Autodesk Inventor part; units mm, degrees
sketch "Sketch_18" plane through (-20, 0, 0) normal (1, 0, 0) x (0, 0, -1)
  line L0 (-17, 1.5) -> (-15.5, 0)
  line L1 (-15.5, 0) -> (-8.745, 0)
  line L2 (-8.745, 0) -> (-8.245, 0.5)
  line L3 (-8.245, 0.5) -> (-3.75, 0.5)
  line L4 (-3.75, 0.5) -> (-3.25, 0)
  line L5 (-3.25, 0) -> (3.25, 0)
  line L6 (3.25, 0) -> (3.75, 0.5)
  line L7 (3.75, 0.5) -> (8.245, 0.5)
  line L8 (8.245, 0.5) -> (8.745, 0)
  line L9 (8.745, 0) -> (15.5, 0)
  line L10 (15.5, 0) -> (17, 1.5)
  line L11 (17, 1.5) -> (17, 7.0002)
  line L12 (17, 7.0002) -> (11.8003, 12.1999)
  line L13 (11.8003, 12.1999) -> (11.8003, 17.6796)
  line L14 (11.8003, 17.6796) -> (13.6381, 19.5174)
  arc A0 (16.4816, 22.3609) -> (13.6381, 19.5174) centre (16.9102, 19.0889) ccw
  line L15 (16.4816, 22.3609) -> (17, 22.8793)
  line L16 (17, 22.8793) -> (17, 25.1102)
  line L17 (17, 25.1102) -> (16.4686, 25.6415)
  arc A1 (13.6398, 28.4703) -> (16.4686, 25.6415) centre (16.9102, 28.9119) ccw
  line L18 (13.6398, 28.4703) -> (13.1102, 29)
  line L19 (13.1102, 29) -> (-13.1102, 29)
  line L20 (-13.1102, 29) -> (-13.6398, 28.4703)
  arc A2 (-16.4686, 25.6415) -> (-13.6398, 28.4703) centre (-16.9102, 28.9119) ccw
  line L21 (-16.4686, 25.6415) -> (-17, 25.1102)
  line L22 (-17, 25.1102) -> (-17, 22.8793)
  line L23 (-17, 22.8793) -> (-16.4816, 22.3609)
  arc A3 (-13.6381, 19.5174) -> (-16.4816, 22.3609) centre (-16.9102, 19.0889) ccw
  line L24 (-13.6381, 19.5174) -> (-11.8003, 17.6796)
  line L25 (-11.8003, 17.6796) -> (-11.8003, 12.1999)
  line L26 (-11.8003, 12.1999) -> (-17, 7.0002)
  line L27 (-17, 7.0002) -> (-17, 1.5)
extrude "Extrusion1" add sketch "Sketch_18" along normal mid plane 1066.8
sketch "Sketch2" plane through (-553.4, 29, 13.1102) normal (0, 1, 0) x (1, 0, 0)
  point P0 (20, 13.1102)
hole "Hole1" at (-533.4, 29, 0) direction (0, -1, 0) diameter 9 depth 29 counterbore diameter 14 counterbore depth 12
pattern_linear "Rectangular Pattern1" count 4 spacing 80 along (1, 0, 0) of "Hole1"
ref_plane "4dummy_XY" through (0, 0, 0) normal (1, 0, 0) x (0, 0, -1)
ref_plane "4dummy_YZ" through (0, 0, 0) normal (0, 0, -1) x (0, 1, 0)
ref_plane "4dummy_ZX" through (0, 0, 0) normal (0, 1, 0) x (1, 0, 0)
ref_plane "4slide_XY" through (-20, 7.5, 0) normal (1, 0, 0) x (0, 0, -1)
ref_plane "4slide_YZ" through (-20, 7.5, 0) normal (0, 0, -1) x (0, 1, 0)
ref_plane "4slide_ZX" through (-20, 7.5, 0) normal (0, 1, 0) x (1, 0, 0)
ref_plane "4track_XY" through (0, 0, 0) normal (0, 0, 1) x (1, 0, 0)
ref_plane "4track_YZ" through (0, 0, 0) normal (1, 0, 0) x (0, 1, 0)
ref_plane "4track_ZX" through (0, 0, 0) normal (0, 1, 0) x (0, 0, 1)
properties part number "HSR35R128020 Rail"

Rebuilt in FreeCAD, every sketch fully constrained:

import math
import FreeCAD as App
import Part
import Sketcher
from FreeCAD import Vector
Q = App.Units.Quantity

doc = App.newDocument("Part")
body = doc.addObject("PartDesign::Body", "Body")

sketch1 = body.newObject("Sketcher::SketchObject", "Sketch")
sketch1.AttachmentSupport = (doc.getObject("YZ_Plane"), [""])
sketch1.MapMode = "FlatFace"
sketch1.AttachmentOffset = App.Placement(Vector(0, 0, -20), App.Rotation())
sketch1.addGeometry([
    Part.LineSegment(Vector(7.0002, 17, 0), Vector(1.5, 17, 0)),
    Part.LineSegment(Vector(1.5, 17, 0), Vector(0, 15.5, 0)),
    Part.LineSegment(Vector(0, 15.5, 0), Vector(0, 8.745, 0)),
    Part.LineSegment(Vector(0, 8.745, 0), Vector(0.5, 8.245, 0)),
    Part.LineSegment(Vector(0.5, 8.245, 0), Vector(0.5, 3.75, 0)),
    Part.LineSegment(Vector(0.5, 3.75, 0), Vector(0, 3.25, 0)),
    Part.LineSegment(Vector(0, 3.25, 0), Vector(0, -3.25, 0)),
    Part.LineSegment(Vector(0, -3.25, 0), Vector(0.5, -3.75, 0)),
    Part.LineSegment(Vector(0.5, -3.75, 0), Vector(0.5, -8.245, 0)),
    Part.LineSegment(Vector(0.5, -8.245, 0), Vector(0, -8.745, 0)),
    Part.LineSegment(Vector(0, -8.745, 0), Vector(0, -15.5, 0)),
    Part.LineSegment(Vector(0, -15.5, 0), Vector(1.5, -17, 0)),
    Part.LineSegment(Vector(1.5, -17, 0), Vector(7.0002, -17, 0)),
    Part.LineSegment(Vector(7.0002, -17, 0), Vector(12.1999, -11.8003, 0)),
    Part.LineSegment(Vector(12.1999, -11.8003, 0), Vector(17.6796, -11.8003, 0)),
    Part.LineSegment(Vector(17.6796, -11.8003, 0), Vector(19.5174, -13.6381, 0)),
    Part.ArcOfCircle(Part.Circle(Vector(19.0889, -16.9102, 0), Vector(0, 0, 1), 3.299952), math.radians(7.462698), math.radians(82.539249)),
    Part.LineSegment(Vector(22.3609, -16.4816, 0), Vector(22.8793, -17, 0)),
    Part.LineSegment(Vector(22.8793, -17, 0), Vector(25.1102, -17, 0)),
    Part.LineSegment(Vector(25.1102, -17, 0), Vector(25.6415, -16.4686, 0)),
    Part.ArcOfCircle(Part.Circle(Vector(28.9119, -16.9102, 0), Vector(0, 0, 1), 3.30008), math.radians(97.6901), math.radians(172.3099)),
    Part.LineSegment(Vector(28.4703, -13.6398, 0), Vector(29, -13.1102, 0)),
    Part.LineSegment(Vector(29, -13.1102, 0), Vector(29, 13.1102, 0)),
    Part.LineSegment(Vector(29, 13.1102, 0), Vector(28.4703, 13.6398, 0)),
    Part.ArcOfCircle(Part.Circle(Vector(28.9119, 16.9102, 0), Vector(0, 0, 1), 3.30008), math.radians(-172.3099), math.radians(-97.6901)),
    Part.LineSegment(Vector(25.6415, 16.4686, 0), Vector(25.1102, 17, 0)),
    Part.LineSegment(Vector(25.1102, 17, 0), Vector(22.8793, 17, 0)),
    Part.LineSegment(Vector(22.8793, 17, 0), Vector(22.3609, 16.4816, 0)),
    Part.ArcOfCircle(Part.Circle(Vector(19.0889, 16.9102, 0), Vector(0, 0, 1), 3.300038), math.radians(-82.539249), math.radians(-7.462698)),
    Part.LineSegment(Vector(19.5174, 13.6381, 0), Vector(17.6796, 11.8003, 0)),
    Part.LineSegment(Vector(17.6796, 11.8003, 0), Vector(12.1999, 11.8003, 0)),
    Part.LineSegment(Vector(12.1999, 11.8003, 0), Vector(7.0002, 17, 0)),
], False)
sketch1.addConstraint([
    Sketcher.Constraint("Coincident", 0, 2, 1, 1),
    Sketcher.Constraint("Coincident", 1, 2, 2, 1),
    Sketcher.Constraint("Coincident", 2, 2, 3, 1),
    Sketcher.Constraint("Coincident", 3, 2, 4, 1),
    Sketcher.Constraint("Coincident", 4, 2, 5, 1),
    Sketcher.Constraint("Coincident", 5, 2, 6, 1),
    Sketcher.Constraint("Coincident", 6, 2, 7, 1),
    Sketcher.Constraint("Coincident", 7, 2, 8, 1),
    Sketcher.Constraint("Coincident", 8, 2, 9, 1),
    Sketcher.Constraint("Coincident", 9, 2, 10, 1),
    Sketcher.Constraint("Coincident", 10, 2, 11, 1),
    Sketcher.Constraint("Coincident", 11, 2, 12, 1),
    Sketcher.Constraint("Coincident", 12, 2, 13, 1),
    Sketcher.Constraint("Coincident", 13, 2, 14, 1),
    Sketcher.Constraint("Coincident", 14, 2, 15, 1),
    Sketcher.Constraint("Coincident", 15, 2, 16, 2),
    Sketcher.Constraint("Coincident", 16, 1, 17, 1),
    Sketcher.Constraint("Coincident", 17, 2, 18, 1),
    Sketcher.Constraint("Coincident", 18, 2, 19, 1),
    Sketcher.Constraint("Coincident", 19, 2, 20, 2),
    Sketcher.Constraint("Coincident", 20, 1, 21, 1),
    Sketcher.Constraint("Coincident", 21, 2, 22, 1),
    Sketcher.Constraint("Coincident", 22, 2, 23, 1),
    Sketcher.Constraint("Coincident", 23, 2, 24, 2),
    Sketcher.Constraint("Coincident", 24, 1, 25, 1),
    Sketcher.Constraint("Coincident", 25, 2, 26, 1),
    Sketcher.Constraint("Coincident", 26, 2, 27, 1),
    Sketcher.Constraint("Coincident", 27, 2, 28, 2),
    Sketcher.Constraint("Coincident", 28, 1, 29, 1),
    Sketcher.Constraint("Coincident", 29, 2, 30, 1),
    Sketcher.Constraint("Coincident", 30, 2, 31, 1),
    Sketcher.Constraint("Coincident", 31, 2, 0, 1),
    Sketcher.Constraint("Horizontal", 0),
    Sketcher.Constraint("Vertical", 2),
    Sketcher.Constraint("Vertical", 4),
    Sketcher.Constraint("Vertical", 6),
    Sketcher.Constraint("Vertical", 8),
    Sketcher.Constraint("Vertical", 10),
    Sketcher.Constraint("Horizontal", 12),
    Sketcher.Constraint("Horizontal", 14),
    Sketcher.Constraint("Horizontal", 18),
    Sketcher.Constraint("Vertical", 22),
    Sketcher.Constraint("Horizontal", 26),
    Sketcher.Constraint("Horizontal", 30),
    Sketcher.Constraint("PointOnObject", 1, 2, -2),
    Sketcher.Constraint("PointOnObject", 5, 2, -2),
    Sketcher.Constraint("PointOnObject", 9, 2, -2),
    Sketcher.Constraint("Radius", 16, Q("3.3 mm")),
    Sketcher.Constraint("Radius", 20, Q("3.3 mm")),
    Sketcher.Constraint("Radius", 24, Q("3.3 mm")),
    Sketcher.Constraint("Radius", 28, Q("3.3 mm")),
    Sketcher.Constraint("DistanceY", 6, 2, 6, 1, Q("6.5 mm")),
    Sketcher.Constraint("DistanceY", -1, 1, 0, 2, Q("17 mm")),
    Sketcher.Constraint("DistanceY", 11, 2, -1, 1, Q("17 mm")),
    Sketcher.Constraint("DistanceY", 17, 2, -1, 1, Q("17 mm")),
    Sketcher.Constraint("DistanceX", -1, 1, 21, 2, Q("29 mm")),
    Sketcher.Constraint("DistanceY", -1, 1, 25, 2, Q("17 mm")),
    Sketcher.Constraint("DistanceX", 3, 2, 0, 2, Q("1 mm")),
    Sketcher.Constraint("DistanceY", 6, 2, 4, 2, Q("7 mm")),
    Sketcher.Constraint("DistanceY", 7, 2, 5, 2, Q("7 mm")),
    Sketcher.Constraint("DistanceX", 8, 2, 11, 2, Q("1 mm")),
    Sketcher.Constraint("DistanceX", -1, 1, 0, 2, Q("1.5 mm")),
    Sketcher.Constraint("DistanceY", -1, 1, 1, 2, Q("15.5 mm")),
    Sketcher.Constraint("DistanceX", -1, 1, 7, 2, Q("0.5 mm")),
    Sketcher.Constraint("DistanceY", 10, 2, -1, 1, Q("15.5 mm")),
    Sketcher.Constraint("DistanceX", -1, 1, 13, 2, Q("12.2 mm")),
    Sketcher.Constraint("DistanceX", -1, 1, 30, 2, Q("12.2 mm")),
    Sketcher.Constraint("DistanceY", 3, 2, 2, 2, Q("0.5 mm")),
    Sketcher.Constraint("DistanceY", 9, 2, 8, 2, Q("0.5 mm")),
    Sketcher.Constraint("DistanceY", 20, 3, 21, 2, Q("3.8 mm")),
    Sketcher.Constraint("DistanceY", 22, 2, 24, 3, Q("3.8 mm")),
    Sketcher.Constraint("DistanceY", 22, 2, 28, 3, Q("3.8 mm")),
    Sketcher.Constraint("DistanceX", 18, 1, 18, 2, Q("2.231 mm")),
    Sketcher.Constraint("DistanceX", 26, 2, 26, 1, Q("2.231 mm")),
    Sketcher.Constraint("DistanceY", 2, 2, 2, 1, Q("6.755 mm")),
    Sketcher.Constraint("DistanceY", 4, 2, 4, 1, Q("4.495 mm")),
    Sketcher.Constraint("DistanceY", 8, 2, 8, 1, Q("4.495 mm")),
    Sketcher.Constraint("DistanceY", 16, 3, 13, 2, Q("5.11 mm")),
    Sketcher.Constraint("DistanceY", 20, 3, 14, 2, Q("5.11 mm")),
    Sketcher.Constraint("DistanceX", 18, 2, 20, 1, Q("3.36 mm")),
    Sketcher.Constraint("DistanceY", 20, 1, 22, 2, Q("26.75 mm")),
    Sketcher.Constraint("DistanceY", 21, 2, 23, 2, Q("26.75 mm")),
    Sketcher.Constraint("DistanceX", 25, 2, 23, 2, Q("3.36 mm")),
    Sketcher.Constraint("DistanceY", 29, 2, 28, 3, Q("5.11 mm")),
    Sketcher.Constraint("Distance", 15, Q("2.599 mm")),
    Sketcher.Constraint("Distance", 21, Q("0.749 mm")),
    Sketcher.Constraint("Distance", 23, Q("0.749 mm")),
    Sketcher.Constraint("Distance", 29, Q("2.599 mm")),
    Sketcher.Constraint("DistanceX", 0, 2, 0, 1, Q("5.5002 mm")),
    Sketcher.Constraint("DistanceX", 12, 1, 12, 2, Q("5.5002 mm")),
    Sketcher.Constraint("DistanceX", 14, 1, 14, 2, Q("5.4797 mm")),
    Sketcher.Constraint("DistanceX", 30, 2, 30, 1, Q("5.4797 mm")),
    Sketcher.Constraint("DistanceY", 22, 1, 22, 2, Q("26.2204 mm")),
    Sketcher.Constraint("DistanceX", -1, 1, 16, 3, Q("19.089 mm")),
    Sketcher.Constraint("DistanceX", -1, 1, 28, 3, Q("19.089 mm")),
    Sketcher.Constraint("DistanceY", 15, 2, -1, 1, Q("13.638 mm")),
    Sketcher.Constraint("DistanceX", -1, 1, 16, 1, Q("22.361 mm")),
    Sketcher.Constraint("DistanceX", -1, 1, 27, 2, Q("22.361 mm")),
    Sketcher.Constraint("DistanceY", 16, 1, 19, 2, Q("0.013 mm")),
    Sketcher.Constraint("DistanceY", 24, 1, 27, 2, Q("0.013 mm")),
])
pad1 = body.newObject("PartDesign::Pad", "Pad")
pad1.Profile = sketch1
pad1.Length = 1066.8
pad1.Midplane = True

sketch2 = body.newObject("Sketcher::SketchObject", "Sketch001")
sketch2.AttachmentSupport = (doc.getObject("XZ_Plane"), [""])
sketch2.MapMode = "FlatFace"
sketch2.AttachmentOffset = App.Placement(Vector(0, 0, -29), App.Rotation())
sketch2.addGeometry(Part.Circle(Vector(-533.4, 0, 0), Vector(0, 0, 1), 4.5), False)
sketch2.addConstraint([
    Sketcher.Constraint("PointOnObject", 0, 3, -1),
    Sketcher.Constraint("Diameter", 0, Q("9 mm")),
    Sketcher.Constraint("DistanceX", 0, 3, -1, 1, Q("533.4 mm")),
])
doc.recompute()
hole = body.newObject("PartDesign::Hole", "Hole")
hole.Profile = sketch2
hole.ThreadType = "None"
hole.Diameter = 9
hole.DepthType = "Dimension"
hole.Depth = 29
hole.DrillPoint = "Flat"
hole.HoleCutType = "Counterbore"
hole.HoleCutDiameter = 14
hole.HoleCutDepth = 12
hole.Reversed = True
doc.recompute()

linearpattern = body.newObject("PartDesign::LinearPattern", "LinearPattern")
linearpattern.Originals = [hole]
linearpattern.Direction = (doc.getObject("X_Axis"), [""])
linearpattern.Mode = "offset"
linearpattern.Offset = 80
linearpattern.Occurrences = 4
body.Tip = linearpattern

doc.recompute()
